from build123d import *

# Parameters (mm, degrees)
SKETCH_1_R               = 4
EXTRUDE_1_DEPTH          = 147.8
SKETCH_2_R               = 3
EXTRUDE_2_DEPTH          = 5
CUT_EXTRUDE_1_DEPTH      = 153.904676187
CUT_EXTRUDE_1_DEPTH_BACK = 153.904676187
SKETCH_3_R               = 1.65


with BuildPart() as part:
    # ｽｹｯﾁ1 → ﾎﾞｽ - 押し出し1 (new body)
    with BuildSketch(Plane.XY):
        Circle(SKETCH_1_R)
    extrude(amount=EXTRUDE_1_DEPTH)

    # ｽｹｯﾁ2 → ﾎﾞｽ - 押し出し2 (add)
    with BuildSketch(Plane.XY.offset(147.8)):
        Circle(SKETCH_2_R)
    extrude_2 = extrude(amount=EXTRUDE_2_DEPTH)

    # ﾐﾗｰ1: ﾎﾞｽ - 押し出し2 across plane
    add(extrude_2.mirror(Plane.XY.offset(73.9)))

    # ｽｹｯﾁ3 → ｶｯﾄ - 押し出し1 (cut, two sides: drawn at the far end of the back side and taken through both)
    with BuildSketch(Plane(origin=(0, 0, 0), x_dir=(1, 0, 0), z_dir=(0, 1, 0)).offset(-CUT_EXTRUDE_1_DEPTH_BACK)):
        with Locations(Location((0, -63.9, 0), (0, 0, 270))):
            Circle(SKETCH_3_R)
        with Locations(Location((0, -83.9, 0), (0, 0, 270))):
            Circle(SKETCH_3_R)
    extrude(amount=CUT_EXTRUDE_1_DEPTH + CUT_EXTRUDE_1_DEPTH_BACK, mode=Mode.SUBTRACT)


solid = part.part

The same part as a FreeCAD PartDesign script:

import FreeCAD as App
import Part
import Sketcher

V = App.Vector
Q = App.Units.Quantity

doc = App.newDocument("Part")
body = doc.addObject("PartDesign::Body", "Body")

# Sketch on XY plane
sketch1 = body.newObject("Sketcher::SketchObject", "Sketch")
sketch1.AttachmentSupport = (doc.getObject("XY_Plane"), [""])
sketch1.MapMode = "FlatFace"
sketch1.addGeometry(Part.Circle(V(0, 0, 0), V(0, 0, 1), 4), False)
sketch1.addConstraint([
    Sketcher.Constraint("Coincident", 0, 3, -1, 1),
    Sketcher.Constraint("Diameter", 0, Q("8 mm")),
])
pad1 = body.newObject("PartDesign::Pad", "Pad")
pad1.Profile = sketch1
pad1.Length = 147.8

# Sketch on XY plane
sketch2 = body.newObject("Sketcher::SketchObject", "Sketch001")
sketch2.AttachmentSupport = (doc.getObject("XY_Plane"), [""])
sketch2.MapMode = "FlatFace"
sketch2.AttachmentOffset = App.Placement(V(0, 0, 147.8), App.Rotation())
sketch2.addGeometry(Part.Circle(V(0, 0, 0), V(0, 0, 1), 3), False)
sketch2.addConstraint([
    Sketcher.Constraint("Coincident", 0, 3, -1, 1),
    Sketcher.Constraint("Diameter", 0, Q("6 mm")),
])
pad2 = body.newObject("PartDesign::Pad", "Pad001")
pad2.Profile = sketch2
pad2.Length = 5
doc.recompute()

datumplane = body.newObject("PartDesign::Plane", "DatumPlane")
datumplane.AttachmentSupport = (doc.getObject("XY_Plane"), [""])
datumplane.MapMode = "FlatFace"
datumplane.AttachmentOffset = App.Placement(V(0, 0, 73.9), App.Rotation())
mirrored = body.newObject("PartDesign::Mirrored", "Mirrored")
mirrored.Originals = [pad2]
mirrored.MirrorPlane = (datumplane, [""])
body.Tip = mirrored

# Sketch on XZ plane
sketch3 = body.newObject("Sketcher::SketchObject", "Sketch002")
sketch3.AttachmentSupport = (doc.getObject("XZ_Plane"), [""])
sketch3.MapMode = "FlatFace"
sketch3.addGeometry([
    Part.Circle(V(0, 63.9, 0), V(0, 0, 1), 1.6),
    Part.Circle(V(0, 83.9, 0), V(0, 0, 1), 1.6),
], False)
sketch3.addConstraint([
    Sketcher.Constraint("Equal", 0, 1),
    Sketcher.Constraint("PointOnObject", 0, 3, -2),
    Sketcher.Constraint("PointOnObject", 1, 3, -2),
    Sketcher.Constraint("Diameter", 0, Q("3.3 mm")),
    Sketcher.Constraint("DistanceY", 0, 3, 1, 3, Q("20 mm")),
    Sketcher.Constraint("DistanceY", -1, 1, 0, 3, Q("63.9 mm")),
])
pocket1 = body.newObject("PartDesign::Pocket", "Pocket")
pocket1.Profile = sketch3
pocket1.Type = "ThroughAll"
pocket1.Midplane = True

doc.recompute()
